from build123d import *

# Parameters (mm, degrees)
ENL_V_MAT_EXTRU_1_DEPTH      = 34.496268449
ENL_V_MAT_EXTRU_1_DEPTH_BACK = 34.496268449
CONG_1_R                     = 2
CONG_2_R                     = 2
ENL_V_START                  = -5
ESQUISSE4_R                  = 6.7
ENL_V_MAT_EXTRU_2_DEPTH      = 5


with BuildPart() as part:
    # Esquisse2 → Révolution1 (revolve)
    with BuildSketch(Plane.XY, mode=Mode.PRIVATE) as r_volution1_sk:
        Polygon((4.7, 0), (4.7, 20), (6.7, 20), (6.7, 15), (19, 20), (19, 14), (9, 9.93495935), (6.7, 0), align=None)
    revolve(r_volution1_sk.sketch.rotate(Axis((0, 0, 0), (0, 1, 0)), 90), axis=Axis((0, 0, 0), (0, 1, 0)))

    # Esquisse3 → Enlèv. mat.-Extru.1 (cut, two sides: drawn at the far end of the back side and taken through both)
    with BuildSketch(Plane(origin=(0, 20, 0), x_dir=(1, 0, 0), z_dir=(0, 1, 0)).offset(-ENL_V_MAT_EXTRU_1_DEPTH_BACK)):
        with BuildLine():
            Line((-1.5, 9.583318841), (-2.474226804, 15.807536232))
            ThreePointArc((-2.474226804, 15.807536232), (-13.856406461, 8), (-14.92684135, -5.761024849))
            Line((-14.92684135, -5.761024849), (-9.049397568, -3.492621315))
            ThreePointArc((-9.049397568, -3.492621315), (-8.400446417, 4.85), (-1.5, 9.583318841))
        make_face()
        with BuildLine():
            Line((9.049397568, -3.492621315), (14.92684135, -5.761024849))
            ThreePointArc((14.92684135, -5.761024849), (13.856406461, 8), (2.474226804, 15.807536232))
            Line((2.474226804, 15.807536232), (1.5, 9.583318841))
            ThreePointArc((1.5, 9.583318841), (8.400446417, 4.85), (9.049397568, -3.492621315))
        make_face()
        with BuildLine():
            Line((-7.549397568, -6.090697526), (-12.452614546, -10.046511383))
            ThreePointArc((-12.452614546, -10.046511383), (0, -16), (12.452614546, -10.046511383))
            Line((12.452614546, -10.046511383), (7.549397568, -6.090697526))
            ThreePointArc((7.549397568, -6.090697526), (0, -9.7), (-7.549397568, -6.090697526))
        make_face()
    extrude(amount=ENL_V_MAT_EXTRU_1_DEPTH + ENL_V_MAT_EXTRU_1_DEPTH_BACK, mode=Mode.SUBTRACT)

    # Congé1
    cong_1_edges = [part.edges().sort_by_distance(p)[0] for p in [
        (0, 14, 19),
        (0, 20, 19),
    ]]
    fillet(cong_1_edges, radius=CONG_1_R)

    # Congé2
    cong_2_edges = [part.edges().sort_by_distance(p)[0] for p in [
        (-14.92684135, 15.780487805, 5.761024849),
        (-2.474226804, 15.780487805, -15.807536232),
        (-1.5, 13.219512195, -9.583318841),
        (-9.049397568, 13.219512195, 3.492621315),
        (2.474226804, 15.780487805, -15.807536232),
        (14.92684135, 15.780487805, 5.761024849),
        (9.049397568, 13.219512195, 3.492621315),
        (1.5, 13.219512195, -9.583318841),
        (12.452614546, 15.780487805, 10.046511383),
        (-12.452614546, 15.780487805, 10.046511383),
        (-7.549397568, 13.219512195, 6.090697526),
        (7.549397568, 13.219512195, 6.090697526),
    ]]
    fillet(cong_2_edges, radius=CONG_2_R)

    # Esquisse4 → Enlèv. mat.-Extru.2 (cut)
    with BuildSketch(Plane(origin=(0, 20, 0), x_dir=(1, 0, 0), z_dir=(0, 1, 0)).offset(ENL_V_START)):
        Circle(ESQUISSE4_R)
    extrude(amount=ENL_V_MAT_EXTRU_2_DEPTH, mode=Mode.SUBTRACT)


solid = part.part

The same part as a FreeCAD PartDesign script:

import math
import FreeCAD as App
import Part
import Sketcher
from FreeCAD import Vector


def edges_at(feature, points):
    """Names of the edges that pass closest to the given points."""
    edges = feature.Shape.Edges
    near = lambda p: min(range(len(edges)), key=lambda i: edges[i].distToShape(Part.Vertex(*p))[0])
    return sorted({f"Edge{near(p) + 1}" for p in points})


def add_polygon(sketch, points):
    """Adds a closed chain of lines whose ends are joined by coincident constraints."""
    first, n = sketch.GeometryCount, len(points)
    for a, b in zip(points, points[1:] + points[:1]):
        sketch.addGeometry(Part.LineSegment(App.Vector(*a, 0), App.Vector(*b, 0)), False)
    for i in range(n):
        sketch.addConstraint(Sketcher.Constraint("Coincident", first + i, 2, first + (i + 1) % n, 1))

doc = App.newDocument("Part")
body = doc.addObject("PartDesign::Body", "Body")

# Sketch on XY plane
sketch1 = body.newObject("Sketcher::SketchObject", "Sketch")
sketch1.AttachmentSupport = (doc.getObject("XY_Plane"), [""])
sketch1.MapMode = "FlatFace"
add_polygon(sketch1, [(4.7, 20), (4.7, 0), (6.7, 0), (9, 9.9), (19, 14), (19, 20), (6.7, 15), (6.7, 20)])  # lines 0-7
sketch1.addConstraint([
    Sketcher.Constraint("Vertical", 0),
    Sketcher.Constraint("Horizontal", 1),
    Sketcher.Constraint("Vertical", 4),
    Sketcher.Constraint("Vertical", 6),
    Sketcher.Constraint("Horizontal", 7),
    Sketcher.Constraint("PointOnObject", 0, 2, -1),
    Sketcher.Constraint("Parallel", 3, 5),
    Sketcher.Constraint("Horizontal", 4, 2, 6, 2),
    Sketcher.Constraint("Vertical", 1, 2, 5, 2),
    Sketcher.Constraint("DistanceX", 1, 1, 1, 2, 2.0),
    Sketcher.Constraint("DistanceY", 0, 2, 0, 1, 20.0),
    Sketcher.Constraint("DistanceY", 4, 1, 4, 2, 6.0),
    Sketcher.Constraint("DistanceY", 6, 1, 6, 2, 5.0),
    Sketcher.Constraint("DistanceX", -1, 1, 2, 2, 9.0),
    Sketcher.Constraint("DistanceX", -1, 1, 3, 2, 19.0),
    Sketcher.Constraint("DistanceX", -1, 1, 0, 2, 4.7),
])
revolution = body.newObject("PartDesign::Revolution", "Revolution")
revolution.Profile = sketch1
revolution.ReferenceAxis = (sketch1, ["V_Axis"])
revolution.Angle = 360

# Sketch on XZ plane
sketch2 = body.newObject("Sketcher::SketchObject", "Sketch001")
sketch2.AttachmentSupport = (doc.getObject("XZ_Plane"), [""])
sketch2.MapMode = "FlatFace"
sketch2.AttachmentOffset = App.Placement(Vector(0, 0, -20), App.Rotation())
sketch2.addGeometry([
    Part.LineSegment(Vector(-2, -10, 0), Vector(-2, -16, 0)),  # 0
    Part.ArcOfCircle(Part.Circle(Vector(0, 0, 0), Vector(0, 0, 1), 16), math.radians(159), math.radians(261)),  # 1
    Part.LineSegment(Vector(-15, 6, 0), Vector(-9, 3, 0)),  # 2
    Part.ArcOfCircle(Part.Circle(Vector(0, 0, 0), Vector(0, 0, 1), 10), math.radians(159), math.radians(261)),  # 3
    Part.LineSegment(Vector(9, 3, 0), Vector(15, 6, 0)),  # 4
    Part.ArcOfCircle(Part.Circle(Vector(0, 0, 0), Vector(0, 0, 1), 16), math.radians(-81), math.radians(21)),  # 5
    Part.LineSegment(Vector(2, -16, 0), Vector(2, -10, 0)),  # 6
    Part.ArcOfCircle(Part.Circle(Vector(0, 0, 0), Vector(0, 0, 1), 10), math.radians(-81), math.radians(21)),  # 7
    Part.LineSegment(Vector(-8, 6, 0), Vector(-12, 10, 0)),  # 8
    Part.ArcOfCircle(Part.Circle(Vector(0, 0, 0), Vector(0, 0, 1), 16), math.radians(39), math.radians(141)),  # 9
    Part.LineSegment(Vector(12, 10, 0), Vector(8, 6, 0)),  # 10
    Part.ArcOfCircle(Part.Circle(Vector(0, 0, 0), Vector(0, 0, 1), 10), math.radians(39), math.radians(141)),  # 11
], False)
sketch2.addConstraint([
    Sketcher.Constraint("Coincident", 0, 2, 1, 2),
    Sketcher.Constraint("Coincident", 1, 1, 2, 1),
    Sketcher.Constraint("Coincident", 2, 2, 3, 1),
    Sketcher.Constraint("Coincident", 3, 2, 0, 1),
    Sketcher.Constraint("Coincident", 4, 2, 5, 2),
    Sketcher.Constraint("Coincident", 5, 1, 6, 1),
    Sketcher.Constraint("Coincident", 6, 2, 7, 1),
    Sketcher.Constraint("Coincident", 7, 2, 4, 1),
    Sketcher.Constraint("Coincident", 8, 2, 9, 2),
    Sketcher.Constraint("Coincident", 9, 1, 10, 1),
    Sketcher.Constraint("Coincident", 10, 2, 11, 1),
    Sketcher.Constraint("Coincident", 11, 2, 8, 1),
    Sketcher.Constraint("Coincident", 1, 3, -1, 1),
    Sketcher.Constraint("Coincident", 3, 3, -1, 1),
    Sketcher.Constraint("Coincident", 5, 3, -1, 1),
    Sketcher.Constraint("Coincident", 7, 3, -1, 1),
    Sketcher.Constraint("Coincident", 9, 3, -1, 1),
    Sketcher.Constraint("Coincident", 11, 3, -1, 1),
    Sketcher.Constraint("Equal", 1, 5),
    Sketcher.Constraint("Equal", 3, 7),
    Sketcher.Constraint("Equal", 5, 9),
    Sketcher.Constraint("Equal", 7, 11),
    Sketcher.Constraint("Horizontal", 1, 1, 4, 2),
    Sketcher.Constraint("Horizontal", 0, 2, 5, 1),
    Sketcher.Constraint("Horizontal", 3, 2, 6, 2),
    Sketcher.Constraint("Horizontal", 2, 2, 7, 2),
    Sketcher.Constraint("Horizontal", 8, 2, 9, 1),
    Sketcher.Constraint("Horizontal", 10, 2, 11, 2),
    Sketcher.Constraint("Radius", 1, 16.0),
    Sketcher.Constraint("Radius", 3, 9.7),
    Sketcher.Constraint("DistanceX", 3, 2, 6, 2, 3.0),
    Sketcher.Constraint("DistanceX", 10, 2, 7, 2, 1.5),
    Sketcher.Constraint("DistanceX", 1, 1, -1, 1, 14.926841),
    Sketcher.Constraint("DistanceY", -1, 1, 2, 2, 3.492621),
    Sketcher.Constraint("DistanceY", -1, 1, 8, 2, 10.046511),
    Sketcher.Constraint("DistanceX", 0, 2, -1, 1, 2.474227),
])
pocket1 = body.newObject("PartDesign::Pocket", "Pocket")
pocket1.Profile = sketch2
pocket1.Type = "ThroughAll"
pocket1.Midplane = True
doc.recompute()

fillet = body.newObject("PartDesign::Fillet", "Fillet")
fillet.Base = (pocket1, edges_at(pocket1, [(0, 14, 19), (0, 20, 19)]))
fillet.Radius = 2
doc.recompute()

fillet2 = body.newObject("PartDesign::Fillet", "Fillet001")
fillet2.Base = (fillet, edges_at(fillet, [
    (-14.927, 15.78, 5.761),
    (-2.474, 15.78, -15.808),
    (-1.5, 13.22, -9.583),
    (-9.049, 13.22, 3.493),
    (2.474, 15.78, -15.808),
    (14.927, 15.78, 5.761),
    (9.049, 13.22, 3.493),
    (1.5, 13.22, -9.583),
    (12.453, 15.78, 10.047),
    (-12.453, 15.78, 10.047),
    (-7.549, 13.22, 6.091),
    (7.549, 13.22, 6.091),
]))
fillet2.Radius = 2

# Sketch on XZ plane
sketch3 = body.newObject("Sketcher::SketchObject", "Sketch002")
sketch3.AttachmentSupport = (doc.getObject("XZ_Plane"), [""])
sketch3.MapMode = "FlatFace"
sketch3.AttachmentOffset = App.Placement(Vector(0, 0, -15), App.Rotation())
sketch3.addGeometry(Part.Circle(Vector(0, 0, 0), Vector(0, 0, 1), 7), False)
sketch3.addConstraint([
    Sketcher.Constraint("Coincident", 0, 3, -1, 1),
    Sketcher.Constraint("Diameter", 0, 13.4),
])
pocket2 = body.newObject("PartDesign::Pocket", "Pocket001")
pocket2.Profile = sketch3
pocket2.Length = 5

doc.recompute()
